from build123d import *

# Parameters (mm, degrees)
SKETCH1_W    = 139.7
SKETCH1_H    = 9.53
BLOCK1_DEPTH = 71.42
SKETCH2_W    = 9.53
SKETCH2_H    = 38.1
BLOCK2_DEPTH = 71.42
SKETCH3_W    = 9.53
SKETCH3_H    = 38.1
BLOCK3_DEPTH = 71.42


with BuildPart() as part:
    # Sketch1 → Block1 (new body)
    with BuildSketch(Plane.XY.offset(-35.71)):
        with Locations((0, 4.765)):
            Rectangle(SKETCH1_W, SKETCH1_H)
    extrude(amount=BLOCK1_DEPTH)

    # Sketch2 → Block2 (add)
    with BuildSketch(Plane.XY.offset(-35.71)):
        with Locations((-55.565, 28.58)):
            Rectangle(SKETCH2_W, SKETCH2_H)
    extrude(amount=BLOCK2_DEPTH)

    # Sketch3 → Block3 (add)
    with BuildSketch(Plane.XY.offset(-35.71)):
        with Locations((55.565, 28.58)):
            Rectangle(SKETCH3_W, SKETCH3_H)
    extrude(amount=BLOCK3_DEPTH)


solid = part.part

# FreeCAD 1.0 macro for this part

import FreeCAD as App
import Part
import Sketcher
from FreeCAD import Vector
Q = App.Units.Quantity

doc = App.newDocument("Part")
body = doc.addObject("PartDesign::Body", "Body")

sketch1 = body.newObject("Sketcher::SketchObject", "Sketch")
sketch1.AttachmentSupport = (doc.getObject("XY_Plane"), [""])
sketch1.MapMode = "FlatFace"
sketch1.AttachmentOffset = App.Placement(Vector(0, 0, -35.71), App.Rotation())
sketch1.addGeometry(Part.LineSegment(Vector(-69.85, 9.53, 0), Vector(-69.85, 0, 0)), False)
sketch1.addGeometry(Part.LineSegment(Vector(-69.85, 0, 0), Vector(69.85, 0, 0)), False)
sketch1.addGeometry(Part.LineSegment(Vector(69.85, 0, 0), Vector(69.85, 9.53, 0)), False)
sketch1.addGeometry(Part.LineSegment(Vector(69.85, 9.53, 0), Vector(-69.85, 9.53, 0)), False)
sketch1.addConstraint(Sketcher.Constraint("Coincident", 0, 2, 1, 1))
sketch1.addConstraint(Sketcher.Constraint("Coincident", 1, 2, 2, 1))
sketch1.addConstraint(Sketcher.Constraint("Coincident", 2, 2, 3, 1))
sketch1.addConstraint(Sketcher.Constraint("Coincident", 3, 2, 0, 1))
sketch1.addConstraint(Sketcher.Constraint("Vertical", 0))
sketch1.addConstraint(Sketcher.Constraint("Horizontal", 1))
sketch1.addConstraint(Sketcher.Constraint("Vertical", 2))
sketch1.addConstraint(Sketcher.Constraint("Horizontal", 3))
sketch1.addConstraint(Sketcher.Constraint("Symmetric", 0, 2, 1, 2, -1, 1))
sketch1.addConstraint(Sketcher.Constraint("DistanceX", 1, 1, 1, 2, Q("5.5 in")))
sketch1.addConstraint(Sketcher.Constraint("DistanceY", 0, 2, 0, 1, 9.53))
pad1 = body.newObject("PartDesign::Pad", "Pad")
pad1.Profile = sketch1
pad1.Length = 71.42

sketch2 = body.newObject("Sketcher::SketchObject", "Sketch001")
sketch2.AttachmentSupport = (doc.getObject("XY_Plane"), [""])
sketch2.MapMode = "FlatFace"
sketch2.AttachmentOffset = App.Placement(Vector(0, 0, -35.71), App.Rotation())
sketch2.addGeometry(Part.LineSegment(Vector(-60.33, 47.63, 0), Vector(-60.33, 9.53, 0)), False)
sketch2.addGeometry(Part.LineSegment(Vector(-60.33, 9.53, 0), Vector(-50.8, 9.53, 0)), False)
sketch2.addGeometry(Part.LineSegment(Vector(-50.8, 9.53, 0), Vector(-50.8, 47.63, 0)), False)
sketch2.addGeometry(Part.LineSegment(Vector(-50.8, 47.63, 0), Vector(-60.33, 47.63, 0)), False)
sketch2.addConstraint(Sketcher.Constraint("Coincident", 0, 2, 1, 1))
sketch2.addConstraint(Sketcher.Constraint("Coincident", 1, 2, 2, 1))
sketch2.addConstraint(Sketcher.Constraint("Coincident", 2, 2, 3, 1))
sketch2.addConstraint(Sketcher.Constraint("Coincident", 3, 2, 0, 1))
sketch2.addConstraint(Sketcher.Constraint("Vertical", 0))
sketch2.addConstraint(Sketcher.Constraint("Horizontal", 1))
sketch2.addConstraint(Sketcher.Constraint("Vertical", 2))
sketch2.addConstraint(Sketcher.Constraint("Horizontal", 3))
sketch2.addConstraint(Sketcher.Constraint("DistanceY", 0, 2, 0, 1, Q("1.5 in")))
sketch2.addConstraint(Sketcher.Constraint("DistanceX", 1, 2, -1, 1, Q("2 in")))
sketch2.addConstraint(Sketcher.Constraint("DistanceX", 1, 1, 1, 2, 9.53))
sketch2.addConstraint(Sketcher.Constraint("DistanceY", -1, 1, 0, 2, 9.53))
pad2 = body.newObject("PartDesign::Pad", "Pad001")
pad2.Profile = sketch2
pad2.Length = 71.42

sketch3 = body.newObject("Sketcher::SketchObject", "Sketch002")
sketch3.AttachmentSupport = (doc.getObject("XY_Plane"), [""])
sketch3.MapMode = "FlatFace"
sketch3.AttachmentOffset = App.Placement(Vector(0, 0, -35.71), App.Rotation())
sketch3.addGeometry(Part.LineSegment(Vector(50.8, 47.63, 0), Vector(50.8, 9.53, 0)), False)
sketch3.addGeometry(Part.LineSegment(Vector(50.8, 9.53, 0), Vector(60.33, 9.53, 0)), False)
sketch3.addGeometry(Part.LineSegment(Vector(60.33, 9.53, 0), Vector(60.33, 47.63, 0)), False)
sketch3.addGeometry(Part.LineSegment(Vector(60.33, 47.63, 0), Vector(50.8, 47.63, 0)), False)
sketch3.addConstraint(Sketcher.Constraint("Coincident", 0, 2, 1, 1))
sketch3.addConstraint(Sketcher.Constraint("Coincident", 1, 2, 2, 1))
sketch3.addConstraint(Sketcher.Constraint("Coincident", 2, 2, 3, 1))
sketch3.addConstraint(Sketcher.Constraint("Coincident", 3, 2, 0, 1))
sketch3.addConstraint(Sketcher.Constraint("Vertical", 0))
sketch3.addConstraint(Sketcher.Constraint("Horizontal", 1))
sketch3.addConstraint(Sketcher.Constraint("Vertical", 2))
sketch3.addConstraint(Sketcher.Constraint("Horizontal", 3))
sketch3.addConstraint(Sketcher.Constraint("DistanceY", 0, 2, 0, 1, Q("1.5 in")))
sketch3.addConstraint(Sketcher.Constraint("DistanceX", -1, 1, 0, 2, Q("2 in")))
sketch3.addConstraint(Sketcher.Constraint("DistanceX", 1, 1, 1, 2, 9.53))
sketch3.addConstraint(Sketcher.Constraint("DistanceY", -1, 1, 0, 2, 9.53))
pad3 = body.newObject("PartDesign::Pad", "Pad002")
pad3.Profile = sketch3
pad3.Length = 71.42

doc.recompute()
